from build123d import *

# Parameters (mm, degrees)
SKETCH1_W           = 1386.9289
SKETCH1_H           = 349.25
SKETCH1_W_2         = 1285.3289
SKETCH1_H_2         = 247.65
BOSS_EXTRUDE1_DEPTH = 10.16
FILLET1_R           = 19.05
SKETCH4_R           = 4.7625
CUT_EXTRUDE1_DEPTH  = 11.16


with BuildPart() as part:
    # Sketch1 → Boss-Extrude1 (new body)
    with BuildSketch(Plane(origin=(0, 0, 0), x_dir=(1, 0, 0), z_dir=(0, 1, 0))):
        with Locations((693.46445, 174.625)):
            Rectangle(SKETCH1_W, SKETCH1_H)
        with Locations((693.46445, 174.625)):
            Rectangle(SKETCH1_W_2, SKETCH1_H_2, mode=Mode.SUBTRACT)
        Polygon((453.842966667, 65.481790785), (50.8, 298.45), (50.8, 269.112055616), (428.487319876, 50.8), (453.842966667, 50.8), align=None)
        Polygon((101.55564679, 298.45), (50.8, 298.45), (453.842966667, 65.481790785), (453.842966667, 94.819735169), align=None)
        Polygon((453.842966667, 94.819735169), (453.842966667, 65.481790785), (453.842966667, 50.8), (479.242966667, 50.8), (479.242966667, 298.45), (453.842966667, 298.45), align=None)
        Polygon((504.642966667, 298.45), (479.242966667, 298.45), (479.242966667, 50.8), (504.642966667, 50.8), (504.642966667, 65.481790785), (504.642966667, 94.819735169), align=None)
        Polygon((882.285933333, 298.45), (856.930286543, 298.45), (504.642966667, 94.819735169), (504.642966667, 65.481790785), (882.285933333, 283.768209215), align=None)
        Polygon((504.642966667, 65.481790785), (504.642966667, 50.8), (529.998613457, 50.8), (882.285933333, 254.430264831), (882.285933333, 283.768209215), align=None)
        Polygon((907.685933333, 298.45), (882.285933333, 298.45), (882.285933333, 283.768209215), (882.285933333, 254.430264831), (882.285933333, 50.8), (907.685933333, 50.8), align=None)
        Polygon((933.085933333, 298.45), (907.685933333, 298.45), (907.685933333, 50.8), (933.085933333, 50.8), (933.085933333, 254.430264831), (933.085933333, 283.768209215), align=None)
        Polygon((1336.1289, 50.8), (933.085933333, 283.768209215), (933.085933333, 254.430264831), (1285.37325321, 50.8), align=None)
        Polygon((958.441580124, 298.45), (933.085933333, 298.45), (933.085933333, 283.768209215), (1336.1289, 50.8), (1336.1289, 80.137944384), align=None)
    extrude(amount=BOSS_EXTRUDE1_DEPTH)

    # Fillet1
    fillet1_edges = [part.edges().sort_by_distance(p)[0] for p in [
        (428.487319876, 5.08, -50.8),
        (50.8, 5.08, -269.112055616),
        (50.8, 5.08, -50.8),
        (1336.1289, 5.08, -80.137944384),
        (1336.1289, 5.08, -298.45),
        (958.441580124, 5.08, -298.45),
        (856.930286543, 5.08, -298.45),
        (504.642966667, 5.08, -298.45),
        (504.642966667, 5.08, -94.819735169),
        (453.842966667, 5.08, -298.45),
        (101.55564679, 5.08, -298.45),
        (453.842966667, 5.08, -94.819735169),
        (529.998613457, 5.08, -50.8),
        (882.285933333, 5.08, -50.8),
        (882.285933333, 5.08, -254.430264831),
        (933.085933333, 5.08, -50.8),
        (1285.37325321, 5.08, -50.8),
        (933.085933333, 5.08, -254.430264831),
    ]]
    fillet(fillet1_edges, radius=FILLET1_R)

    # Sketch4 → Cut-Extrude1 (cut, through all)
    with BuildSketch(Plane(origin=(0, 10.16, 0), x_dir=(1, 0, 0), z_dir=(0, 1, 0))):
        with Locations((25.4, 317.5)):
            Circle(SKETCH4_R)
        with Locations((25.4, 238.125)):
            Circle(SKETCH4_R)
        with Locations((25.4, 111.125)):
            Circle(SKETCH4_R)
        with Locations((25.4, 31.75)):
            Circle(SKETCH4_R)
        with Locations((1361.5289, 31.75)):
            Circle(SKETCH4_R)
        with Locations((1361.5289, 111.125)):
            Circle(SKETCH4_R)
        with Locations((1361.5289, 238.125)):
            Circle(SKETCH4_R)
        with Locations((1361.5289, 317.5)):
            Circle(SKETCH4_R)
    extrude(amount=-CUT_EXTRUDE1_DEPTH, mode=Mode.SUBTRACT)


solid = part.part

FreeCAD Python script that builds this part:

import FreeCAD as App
import Part
import Sketcher
from FreeCAD import Vector
Q = App.Units.Quantity


def edges_at(feature, points):
    """Names of the edges that pass closest to the given points."""
    edges = feature.Shape.Edges
    near = lambda p: min(range(len(edges)), key=lambda i: edges[i].distToShape(Part.Vertex(*p))[0])
    return sorted({f"Edge{near(p) + 1}" for p in points})


def add_polygon(sketch, points):
    """Adds a closed chain of lines whose ends are joined by coincident constraints."""
    first, n = sketch.GeometryCount, len(points)
    for a, b in zip(points, points[1:] + points[:1]):
        sketch.addGeometry(Part.LineSegment(App.Vector(*a, 0), App.Vector(*b, 0)), False)
    for i in range(n):
        sketch.addConstraint(Sketcher.Constraint("Coincident", first + i, 2, first + (i + 1) % n, 1))

doc = App.newDocument("Part")
body = doc.addObject("PartDesign::Body", "Body")

# Sketch on XZ plane
sketch1 = body.newObject("Sketcher::SketchObject", "Sketch")
sketch1.AttachmentSupport = (doc.getObject("XZ_Plane"), [""])
sketch1.MapMode = "FlatFace"
add_polygon(sketch1, [(0, -349), (0, 0), (1387, 0), (1387, -349)])  # lines 0-3
add_polygon(sketch1, [(428, -51), (51, -51), (51, -269)])  # lines 4-6
add_polygon(sketch1, [(882, -51), (530, -51), (882, -254)])  # lines 7-9
add_polygon(sketch1, [(1285, -51), (933, -51), (933, -254)])  # lines 10-12
add_polygon(sketch1, [(958, -298), (1336, -298), (1336, -80)])  # lines 13-15
add_polygon(sketch1, [(505, -95), (505, -298), (857, -298)])  # lines 16-18
add_polygon(sketch1, [(454, -95), (102, -298), (454, -298)])  # lines 19-21
sketch1.addConstraint([
    Sketcher.Constraint("Vertical", 0),
    Sketcher.Constraint("Horizontal", 1),
    Sketcher.Constraint("Vertical", 2),
    Sketcher.Constraint("Horizontal", 3),
    Sketcher.Constraint("Horizontal", 4),
    Sketcher.Constraint("Vertical", 5),
    Sketcher.Constraint("Horizontal", 7),
    Sketcher.Constraint("Vertical", 9),
    Sketcher.Constraint("Horizontal", 10),
    Sketcher.Constraint("Vertical", 11),
    Sketcher.Constraint("Horizontal", 13),
    Sketcher.Constraint("Vertical", 14),
    Sketcher.Constraint("Vertical", 16),
    Sketcher.Constraint("Horizontal", 17),
    Sketcher.Constraint("Horizontal", 20),
    Sketcher.Constraint("Vertical", 21),
    Sketcher.Constraint("Coincident", 0, 2, -1, 1),
    Sketcher.Constraint("Parallel", 6, 12),
    Sketcher.Constraint("Parallel", 12, 15),
    Sketcher.Constraint("Parallel", 8, 18),
    Sketcher.Constraint("Parallel", 15, 19),
    Sketcher.Constraint("Horizontal", 6, 2, 7, 2),
    Sketcher.Constraint("Horizontal", 9, 2, 10, 2),
    Sketcher.Constraint("Horizontal", 8, 2, 11, 2),
    Sketcher.Constraint("Horizontal", 15, 2, 16, 2),
    Sketcher.Constraint("Horizontal", 17, 2, 19, 2),
    Sketcher.Constraint("Horizontal", 18, 2, 21, 2),
    Sketcher.Constraint("Equal", 7, 10),
    Sketcher.Constraint("Equal", 4, 13),
    Sketcher.Constraint("Equal", 10, 17),
    Sketcher.Constraint("DistanceX", -1, 1, 4, 2, Q("2 in")),
    Sketcher.Constraint("DistanceY", 4, 2, -1, 1, Q("2 in")),
    Sketcher.Constraint("DistanceX", 9, 2, 10, 2, Q("2 in")),
    Sketcher.Constraint("DistanceX", 13, 2, 2, 2, Q("2 in")),
    Sketcher.Constraint("DistanceY", 2, 2, 13, 2, Q("2 in")),
    Sketcher.Constraint("DistanceX", 20, 2, 16, 2, Q("2 in")),
    Sketcher.Constraint("DistanceY", 0, 1, 0, 2, Q("13.75 in")),
    Sketcher.Constraint("DistanceX", 1, 1, 1, 2, Q("54.6035 in")),
    Sketcher.Constraint("DistanceX", 4, 2, 4, 1, Q("377.68732 mm")),
    Sketcher.Constraint("DistanceX", 7, 2, 7, 1, Q("352.28732 mm")),
    Sketcher.Constraint("DistanceY", 5, 2, 5, 1, Q("218.312056 mm")),
    Sketcher.Constraint("DistanceX", -1, 1, 7, 2, Q("529.998613 mm")),
    Sketcher.Constraint("DistanceX", -1, 1, 16, 2, Q("504.642967 mm")),
])
pad1 = body.newObject("PartDesign::Pad", "Pad")
pad1.Profile = sketch1
pad1.Length = Q("0.4 in")
pad1.Reversed = True
doc.recompute()

fillet = body.newObject("PartDesign::Fillet", "Fillet")
fillet.Base = (pad1, edges_at(pad1, [
    (428.487, 5.08, -50.8),
    (50.8, 5.08, -269.112),
    (50.8, 5.08, -50.8),
    (1336.129, 5.08, -80.138),
    (1336.129, 5.08, -298.45),
    (958.442, 5.08, -298.45),
    (856.93, 5.08, -298.45),
    (504.643, 5.08, -298.45),
    (504.643, 5.08, -94.82),
    (453.843, 5.08, -298.45),
    (101.556, 5.08, -298.45),
    (453.843, 5.08, -94.82),
    (529.999, 5.08, -50.8),
    (882.286, 5.08, -50.8),
    (882.286, 5.08, -254.43),
    (933.086, 5.08, -50.8),
    (1285.373, 5.08, -50.8),
    (933.086, 5.08, -254.43),
]))
fillet.Radius = Q("0.75 in")

# Sketch on XZ plane
sketch2 = body.newObject("Sketcher::SketchObject", "Sketch001")
sketch2.AttachmentSupport = (doc.getObject("XZ_Plane"), [""])
sketch2.MapMode = "FlatFace"
sketch2.AttachmentOffset = App.Placement(Vector(0, 0, -0.4 * 25.4), App.Rotation())
sketch2.addGeometry([
    Part.Circle(Vector(25.4, -317.5, 0), Vector(0, 0, 1), 4.8),  # 0
    Part.Circle(Vector(25.4, -238.1, 0), Vector(0, 0, 1), 4.8),  # 1
    Part.Circle(Vector(25.4, -111.1, 0), Vector(0, 0, 1), 4.8),  # 2
    Part.Circle(Vector(25.4, -31.8, 0), Vector(0, 0, 1), 4.8),  # 3
    Part.Circle(Vector(1361.5, -31.8, 0), Vector(0, 0, 1), 4.8),  # 4
    Part.Circle(Vector(1361.5, -111.1, 0), Vector(0, 0, 1), 4.8),  # 5
    Part.Circle(Vector(1361.5, -238.1, 0), Vector(0, 0, 1), 4.8),  # 6
    Part.Circle(Vector(1361.5, -317.5, 0), Vector(0, 0, 1), 4.8),  # 7
], False)
sketch2.addConstraint([
    Sketcher.Constraint("Equal", 0, 1),
    Sketcher.Constraint("Equal", 1, 2),
    Sketcher.Constraint("Equal", 2, 3),
    Sketcher.Constraint("Equal", 3, 4),
    Sketcher.Constraint("Equal", 4, 5),
    Sketcher.Constraint("Equal", 5, 6),
    Sketcher.Constraint("Equal", 6, 7),
    Sketcher.Constraint("Horizontal", 3, 3, 4, 3),
    Sketcher.Constraint("Horizontal", 2, 3, 5, 3),
    Sketcher.Constraint("Horizontal", 1, 3, 6, 3),
    Sketcher.Constraint("Horizontal", 0, 3, 7, 3),
    Sketcher.Constraint("Vertical", 0, 3, 1, 3),
    Sketcher.Constraint("Vertical", 1, 3, 2, 3),
    Sketcher.Constraint("Vertical", 2, 3, 3, 3),
    Sketcher.Constraint("Vertical", 4, 3, 5, 3),
    Sketcher.Constraint("Vertical", 5, 3, 6, 3),
    Sketcher.Constraint("Vertical", 6, 3, 7, 3),
    Sketcher.Constraint("Diameter", 0, Q("0.375 in")),
    Sketcher.Constraint("DistanceX", -1, 1, 0, 3, Q("1 in")),
    Sketcher.Constraint("DistanceY", 1, 3, 2, 3, Q("5 in")),
    Sketcher.Constraint("DistanceY", 0, 3, -1, 1, Q("12.5 in")),
    Sketcher.Constraint("DistanceY", 3, 3, -1, 1, Q("1.25 in")),
    Sketcher.Constraint("DistanceY", 1, 3, -1, 1, Q("9.375 in")),
    Sketcher.Constraint("DistanceX", -1, 1, 4, 3, Q("53.6035 in")),
])
pocket1 = body.newObject("PartDesign::Pocket", "Pocket")
pocket1.Profile = sketch2
pocket1.Type = "ThroughAll"
pocket1.Reversed = True

doc.recompute()
